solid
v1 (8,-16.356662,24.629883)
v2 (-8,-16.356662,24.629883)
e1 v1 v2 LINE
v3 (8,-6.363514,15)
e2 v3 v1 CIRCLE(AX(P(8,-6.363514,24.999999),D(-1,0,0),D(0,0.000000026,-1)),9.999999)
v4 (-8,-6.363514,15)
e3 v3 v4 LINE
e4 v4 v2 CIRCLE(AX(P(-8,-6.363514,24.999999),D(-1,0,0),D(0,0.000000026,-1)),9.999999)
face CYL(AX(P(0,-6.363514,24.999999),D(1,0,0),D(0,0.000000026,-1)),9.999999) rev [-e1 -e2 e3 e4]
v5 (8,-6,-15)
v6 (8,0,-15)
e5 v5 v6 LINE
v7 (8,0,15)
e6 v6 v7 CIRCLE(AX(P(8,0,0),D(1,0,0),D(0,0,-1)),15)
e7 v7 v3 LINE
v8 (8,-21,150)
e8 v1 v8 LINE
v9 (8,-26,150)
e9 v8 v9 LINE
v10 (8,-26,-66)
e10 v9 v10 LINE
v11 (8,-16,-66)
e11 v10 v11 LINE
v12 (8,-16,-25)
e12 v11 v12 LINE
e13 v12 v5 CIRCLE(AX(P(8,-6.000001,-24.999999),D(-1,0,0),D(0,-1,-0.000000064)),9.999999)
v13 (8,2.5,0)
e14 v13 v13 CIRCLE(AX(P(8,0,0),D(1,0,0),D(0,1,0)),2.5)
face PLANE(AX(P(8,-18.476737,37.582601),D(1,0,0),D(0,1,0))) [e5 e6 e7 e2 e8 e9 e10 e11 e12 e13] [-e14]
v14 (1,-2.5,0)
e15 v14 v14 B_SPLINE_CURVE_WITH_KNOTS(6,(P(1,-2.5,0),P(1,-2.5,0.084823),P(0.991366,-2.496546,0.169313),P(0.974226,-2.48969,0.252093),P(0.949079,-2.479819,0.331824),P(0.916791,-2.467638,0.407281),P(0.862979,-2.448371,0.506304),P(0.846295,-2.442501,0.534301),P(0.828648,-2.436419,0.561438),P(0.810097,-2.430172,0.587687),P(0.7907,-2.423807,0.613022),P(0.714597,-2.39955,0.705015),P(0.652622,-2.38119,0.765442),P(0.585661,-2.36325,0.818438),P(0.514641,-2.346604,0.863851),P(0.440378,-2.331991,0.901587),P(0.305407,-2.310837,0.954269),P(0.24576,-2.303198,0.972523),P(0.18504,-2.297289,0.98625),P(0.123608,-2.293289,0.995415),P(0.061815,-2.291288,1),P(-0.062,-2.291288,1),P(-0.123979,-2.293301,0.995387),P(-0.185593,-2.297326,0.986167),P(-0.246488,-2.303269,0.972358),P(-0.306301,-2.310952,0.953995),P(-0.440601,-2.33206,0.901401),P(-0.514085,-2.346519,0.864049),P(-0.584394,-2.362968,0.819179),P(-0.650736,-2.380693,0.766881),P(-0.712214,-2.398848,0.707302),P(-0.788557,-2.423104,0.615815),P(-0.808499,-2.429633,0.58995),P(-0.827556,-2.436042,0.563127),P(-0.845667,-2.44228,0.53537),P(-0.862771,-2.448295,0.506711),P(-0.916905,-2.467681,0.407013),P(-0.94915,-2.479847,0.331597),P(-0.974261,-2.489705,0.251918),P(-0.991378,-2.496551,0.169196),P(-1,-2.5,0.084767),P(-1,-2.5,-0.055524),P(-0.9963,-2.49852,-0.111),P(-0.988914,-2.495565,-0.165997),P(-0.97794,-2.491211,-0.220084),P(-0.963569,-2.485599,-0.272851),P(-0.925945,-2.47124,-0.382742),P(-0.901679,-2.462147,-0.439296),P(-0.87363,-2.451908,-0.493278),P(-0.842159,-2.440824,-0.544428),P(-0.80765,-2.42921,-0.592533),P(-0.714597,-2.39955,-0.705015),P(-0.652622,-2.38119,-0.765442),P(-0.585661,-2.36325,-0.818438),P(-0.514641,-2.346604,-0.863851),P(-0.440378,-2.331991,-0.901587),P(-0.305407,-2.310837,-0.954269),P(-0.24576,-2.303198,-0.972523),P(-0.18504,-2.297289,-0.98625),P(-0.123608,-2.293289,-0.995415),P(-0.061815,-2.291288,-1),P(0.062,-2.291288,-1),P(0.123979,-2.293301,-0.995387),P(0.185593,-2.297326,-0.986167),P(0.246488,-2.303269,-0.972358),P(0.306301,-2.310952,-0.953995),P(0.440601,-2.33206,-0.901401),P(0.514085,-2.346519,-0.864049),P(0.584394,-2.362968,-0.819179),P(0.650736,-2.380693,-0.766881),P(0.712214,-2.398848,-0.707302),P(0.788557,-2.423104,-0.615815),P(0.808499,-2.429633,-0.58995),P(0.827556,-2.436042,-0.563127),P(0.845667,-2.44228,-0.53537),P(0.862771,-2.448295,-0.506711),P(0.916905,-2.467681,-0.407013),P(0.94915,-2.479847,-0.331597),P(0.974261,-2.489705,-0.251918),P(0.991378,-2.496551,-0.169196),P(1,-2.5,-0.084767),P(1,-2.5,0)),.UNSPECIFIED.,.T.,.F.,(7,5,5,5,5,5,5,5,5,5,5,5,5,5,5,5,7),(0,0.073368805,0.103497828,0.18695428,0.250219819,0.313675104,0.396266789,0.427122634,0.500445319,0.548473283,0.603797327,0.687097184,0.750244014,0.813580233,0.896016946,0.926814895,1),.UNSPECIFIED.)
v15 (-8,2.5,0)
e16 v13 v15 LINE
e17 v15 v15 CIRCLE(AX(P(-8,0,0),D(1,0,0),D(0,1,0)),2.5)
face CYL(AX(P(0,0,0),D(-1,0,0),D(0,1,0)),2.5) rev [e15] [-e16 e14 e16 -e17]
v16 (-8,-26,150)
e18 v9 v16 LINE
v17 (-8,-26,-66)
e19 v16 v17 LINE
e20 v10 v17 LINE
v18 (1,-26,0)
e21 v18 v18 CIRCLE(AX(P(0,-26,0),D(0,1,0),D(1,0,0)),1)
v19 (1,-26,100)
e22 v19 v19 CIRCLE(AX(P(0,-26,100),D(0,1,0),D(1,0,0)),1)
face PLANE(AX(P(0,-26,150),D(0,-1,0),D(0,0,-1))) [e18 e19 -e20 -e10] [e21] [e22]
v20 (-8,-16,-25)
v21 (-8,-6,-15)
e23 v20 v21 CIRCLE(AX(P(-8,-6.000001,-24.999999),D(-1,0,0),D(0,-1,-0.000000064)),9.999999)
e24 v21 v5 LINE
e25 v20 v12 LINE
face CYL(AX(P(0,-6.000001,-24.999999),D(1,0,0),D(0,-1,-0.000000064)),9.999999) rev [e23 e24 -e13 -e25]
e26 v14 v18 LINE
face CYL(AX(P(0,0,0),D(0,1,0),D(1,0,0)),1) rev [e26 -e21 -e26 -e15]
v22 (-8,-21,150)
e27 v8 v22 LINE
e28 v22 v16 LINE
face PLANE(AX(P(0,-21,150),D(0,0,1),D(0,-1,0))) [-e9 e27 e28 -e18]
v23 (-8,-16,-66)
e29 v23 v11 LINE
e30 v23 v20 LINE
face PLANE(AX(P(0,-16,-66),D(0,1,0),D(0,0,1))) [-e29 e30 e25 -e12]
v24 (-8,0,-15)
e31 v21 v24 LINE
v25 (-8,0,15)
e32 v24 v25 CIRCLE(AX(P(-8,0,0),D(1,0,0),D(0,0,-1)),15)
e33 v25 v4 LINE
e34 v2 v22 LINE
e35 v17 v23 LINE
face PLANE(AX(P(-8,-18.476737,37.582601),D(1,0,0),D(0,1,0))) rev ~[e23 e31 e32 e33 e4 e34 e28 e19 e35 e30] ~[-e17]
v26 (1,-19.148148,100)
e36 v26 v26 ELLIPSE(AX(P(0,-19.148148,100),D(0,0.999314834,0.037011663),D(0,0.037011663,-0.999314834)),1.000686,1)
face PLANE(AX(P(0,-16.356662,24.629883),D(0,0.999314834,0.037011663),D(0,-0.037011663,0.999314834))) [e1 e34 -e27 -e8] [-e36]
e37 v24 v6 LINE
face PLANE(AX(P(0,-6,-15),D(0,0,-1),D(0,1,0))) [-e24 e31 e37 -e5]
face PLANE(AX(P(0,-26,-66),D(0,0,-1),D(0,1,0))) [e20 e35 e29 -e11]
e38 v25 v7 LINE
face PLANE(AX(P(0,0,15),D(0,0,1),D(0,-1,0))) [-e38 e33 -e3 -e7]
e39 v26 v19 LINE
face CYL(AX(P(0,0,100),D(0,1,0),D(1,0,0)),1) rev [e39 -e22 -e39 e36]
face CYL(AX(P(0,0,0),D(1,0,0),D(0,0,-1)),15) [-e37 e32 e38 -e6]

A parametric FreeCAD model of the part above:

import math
import FreeCAD as App
import Part
import Sketcher
from FreeCAD import Vector

doc = App.newDocument("Part")
params = doc.addObject("Spreadsheet::Sheet", "Params")
for row, (alias, value) in enumerate([
    ("sketch1_diameter", "5 mm"),
    ("sketch1_radius", "9.999999 mm"),
    ("sketch1_radius2", "15 mm"),
    ("sketch1_width", "10 mm"),
    ("sketch1_width2", "6 mm"),
    ("pad1_length", "16 mm"),
    ("sketch2_diameter", "2 mm"),
], start=1):
    params.set(f"A{row}", alias)
    params.set(f"B{row}", "=" + value)
    params.setAlias(f"B{row}", alias)

body = doc.addObject("PartDesign::Body", "Body")

# Sketch on YZ plane
sketch1 = body.newObject("Sketcher::SketchObject", "Sketch")
sketch1.AttachmentSupport = (doc.getObject("YZ_Plane"), [""])
sketch1.MapMode = "FlatFace"
sketch1.addGeometry([
    Part.LineSegment(Vector(-26, -66, 0), Vector(-16, -66, 0)),  # 0
    Part.LineSegment(Vector(-16, -66, 0), Vector(-16, -25, 0)),  # 1
    Part.ArcOfCircle(Part.Circle(Vector(-6, -25, 0), Vector(0, 0, 1), 10), math.radians(90), math.radians(180)),  # 2
    Part.LineSegment(Vector(-6, -15, 0), Vector(0, -15, 0)),  # 3
    Part.ArcOfCircle(Part.Circle(Vector(0, 0, 0), Vector(0, 0, 1), 15), math.radians(-90), math.radians(90)),  # 4
    Part.LineSegment(Vector(0, 15, 0), Vector(-6.4, 15, 0)),  # 5
    Part.ArcOfCircle(Part.Circle(Vector(-6.4, 25, 0), Vector(0, 0, 1), 10), math.radians(-178), math.radians(-90)),  # 6
    Part.LineSegment(Vector(-16.4, 24.6, 0), Vector(-21, 150, 0)),  # 7
    Part.LineSegment(Vector(-21, 150, 0), Vector(-26, 150, 0)),  # 8
    Part.LineSegment(Vector(-26, 150, 0), Vector(-26, -66, 0)),  # 9
    Part.Circle(Vector(0, 0, 0), Vector(0, 0, 1), 2.5),  # 10
], False)
sketch1.addConstraint([
    Sketcher.Constraint("Coincident", 0, 2, 1, 1),
    Sketcher.Constraint("Tangent", 1, 2, 2, 2),
    Sketcher.Constraint("Tangent", 2, 1, 3, 1),
    Sketcher.Constraint("Tangent", 3, 2, 4, 1),
    Sketcher.Constraint("Tangent", 4, 2, 5, 1),
    Sketcher.Constraint("Tangent", 5, 2, 6, 2),
    Sketcher.Constraint("Tangent", 6, 1, 7, 1),
    Sketcher.Constraint("Coincident", 7, 2, 8, 1),
    Sketcher.Constraint("Coincident", 8, 2, 9, 1),
    Sketcher.Constraint("Coincident", 9, 2, 0, 1),
    Sketcher.Constraint("Horizontal", 0),
    Sketcher.Constraint("Vertical", 1),
    Sketcher.Constraint("Horizontal", 3),
    Sketcher.Constraint("Horizontal", 5),
    Sketcher.Constraint("Horizontal", 8),
    Sketcher.Constraint("Vertical", 9),
    Sketcher.Constraint("Coincident", 4, 3, -1, 1),
    Sketcher.Constraint("Coincident", 10, 3, -1, 1),
    Sketcher.Constraint("Equal", 2, 6),
    Sketcher.Constraint("Diameter", 10, 5.0),
    Sketcher.Constraint("Radius", 2, 9.999999),
    Sketcher.Constraint("Radius", 4, 15.0),
    Sketcher.Constraint("DistanceX", 0, 1, 0, 2, 10.0),
    Sketcher.Constraint("DistanceX", 3, 1, 3, 2, 6.0),
    Sketcher.Constraint("DistanceX", 8, 2, 8, 1, 5.0),
    Sketcher.Constraint("DistanceY", 1, 1, 1, 2, 41.0),
    Sketcher.Constraint("DistanceY", 9, 2, 9, 1, 216.0),
    Sketcher.Constraint("DistanceX", 5, 2, 5, 1, 6.363514),
])
sketch1.setExpression("Constraints[19]", "Params.sketch1_diameter")
sketch1.setExpression("Constraints[20]", "Params.sketch1_radius")
sketch1.setExpression("Constraints[21]", "Params.sketch1_radius2")
sketch1.setExpression("Constraints[22]", "Params.sketch1_width")
sketch1.setExpression("Constraints[23]", "Params.sketch1_width2")
pad1 = body.newObject("PartDesign::Pad", "Pad")
pad1.Profile = sketch1
pad1.setExpression("Length", "Params.pad1_length")
pad1.Midplane = True

# Sketch on XZ plane
sketch2 = body.newObject("Sketcher::SketchObject", "Sketch001")
sketch2.AttachmentSupport = (doc.getObject("XZ_Plane"), [""])
sketch2.MapMode = "FlatFace"
sketch2.addGeometry([
    Part.Circle(Vector(0, -75, 0), Vector(0, 0, 1), 1),
    Part.Circle(Vector(0, 0, 0), Vector(0, 0, 1), 1),
    Part.Circle(Vector(0, 100, 0), Vector(0, 0, 1), 1),
], False)
sketch2.addConstraint([
    Sketcher.Constraint("Coincident", 1, 3, -1, 1),
    Sketcher.Constraint("Equal", 0, 1),
    Sketcher.Constraint("Equal", 1, 2),
    Sketcher.Constraint("PointOnObject", 0, 3, -2),
    Sketcher.Constraint("PointOnObject", 2, 3, -2),
    Sketcher.Constraint("Diameter", 0, 2.0),
    Sketcher.Constraint("DistanceY", 0, 3, -1, 1, 75.0),
    Sketcher.Constraint("DistanceY", -1, 1, 2, 3, 100.0),
])
sketch2.setExpression("Constraints[5]", "Params.sketch2_diameter")
pocket1 = body.newObject("PartDesign::Pocket", "Pocket")
pocket1.Profile = sketch2
pocket1.Type = "ThroughAll"
pocket1.Reversed = True

doc.recompute()
